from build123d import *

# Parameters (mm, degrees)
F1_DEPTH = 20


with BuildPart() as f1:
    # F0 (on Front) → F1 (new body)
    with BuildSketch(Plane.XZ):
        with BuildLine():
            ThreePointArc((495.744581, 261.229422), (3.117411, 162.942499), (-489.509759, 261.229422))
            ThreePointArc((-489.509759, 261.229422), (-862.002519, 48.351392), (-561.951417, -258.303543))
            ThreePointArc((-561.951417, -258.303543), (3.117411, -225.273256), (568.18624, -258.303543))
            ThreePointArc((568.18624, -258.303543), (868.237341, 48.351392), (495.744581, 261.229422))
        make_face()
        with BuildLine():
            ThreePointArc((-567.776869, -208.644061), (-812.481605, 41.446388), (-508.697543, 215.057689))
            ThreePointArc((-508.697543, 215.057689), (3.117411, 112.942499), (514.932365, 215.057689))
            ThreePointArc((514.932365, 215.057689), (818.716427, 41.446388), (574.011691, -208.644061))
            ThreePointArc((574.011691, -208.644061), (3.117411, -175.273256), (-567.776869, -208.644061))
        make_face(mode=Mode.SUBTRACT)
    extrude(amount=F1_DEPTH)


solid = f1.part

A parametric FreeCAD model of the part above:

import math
import FreeCAD as App
import Part
import Sketcher
Q = App.Units.Quantity

doc = App.newDocument("Part")
body = doc.addObject("PartDesign::Body", "Body")

sketch1 = body.newObject("Sketcher::SketchObject", "Sketch")
sketch1.AttachmentSupport = (doc.getObject("XZ_Plane"), [""])
sketch1.MapMode = "FlatFace"
sketch1.addGeometry([
    Part.ArcOfCircle(Part.Circle(App.Vector(3, 1447, 0), App.Vector(0, 0, 1), 1284), math.radians(-113), math.radians(-67)),
    Part.ArcOfCircle(Part.Circle(App.Vector(-594, 11, 0), App.Vector(0, 0, 1), 271), math.radians(67), math.radians(277)),
    Part.ArcOfCircle(Part.Circle(App.Vector(3, -5075, 0), App.Vector(0, 0, 1), 4850), math.radians(83.31), math.radians(96.69)),
    Part.ArcOfCircle(Part.Circle(App.Vector(600, 11, 0), App.Vector(0, 0, 1), 271), math.radians(-97), math.radians(113)),
    Part.ArcOfCircle(Part.Circle(App.Vector(3, -5075, 0), App.Vector(0, 0, 1), 4900), math.radians(83.31), math.radians(96.69)),
    Part.ArcOfCircle(Part.Circle(App.Vector(-594, 11, 0), App.Vector(0, 0, 1), 221), math.radians(67), math.radians(277)),
    Part.ArcOfCircle(Part.Circle(App.Vector(3, 1447, 0), App.Vector(0, 0, 1), 1334), math.radians(-113), math.radians(-67)),
    Part.ArcOfCircle(Part.Circle(App.Vector(600, 11, 0), App.Vector(0, 0, 1), 221), math.radians(-97), math.radians(113)),
], False)
sketch1.addConstraint([
    Sketcher.Constraint("Tangent", 0, 1, 1, 1),
    Sketcher.Constraint("Tangent", 1, 2, 2, 2),
    Sketcher.Constraint("Tangent", 2, 1, 3, 1),
    Sketcher.Constraint("Tangent", 3, 2, 0, 2),
    Sketcher.Constraint("Tangent", 4, 2, 5, 2),
    Sketcher.Constraint("Tangent", 5, 1, 6, 1),
    Sketcher.Constraint("Tangent", 6, 2, 7, 2),
    Sketcher.Constraint("Tangent", 7, 1, 4, 1),
    Sketcher.Constraint("Coincident", 5, 3, 1, 3),
    Sketcher.Constraint("Coincident", 6, 3, 0, 3),
    Sketcher.Constraint("Coincident", 7, 3, 3, 3),
    Sketcher.Constraint("Equal", 1, 3),
    Sketcher.Constraint("Horizontal", 1, 3, 3, 3),
    Sketcher.Constraint("Radius", 0, Q("1283.700009 mm")),
    Sketcher.Constraint("Radius", 1, Q("271.06667 mm")),
    Sketcher.Constraint("Radius", 4, Q("4900.000008 mm")),
    Sketcher.Constraint("Radius", 5, Q("221.06667 mm")),
    Sketcher.Constraint("Radius", 2, Q("4849.999953 mm")),
    Sketcher.Constraint("DistanceX", -1, 1, 0, 3, Q("3.117411 mm")),
    Sketcher.Constraint("DistanceY", 2, 3, -1, 1, Q("5075.273209 mm")),
    Sketcher.Constraint("DistanceX", -1, 1, 7, 1, Q("574.011691 mm")),
])
pad1 = body.newObject("PartDesign::Pad", "Pad")
pad1.Profile = sketch1
pad1.Length = 20

doc.recompute()
